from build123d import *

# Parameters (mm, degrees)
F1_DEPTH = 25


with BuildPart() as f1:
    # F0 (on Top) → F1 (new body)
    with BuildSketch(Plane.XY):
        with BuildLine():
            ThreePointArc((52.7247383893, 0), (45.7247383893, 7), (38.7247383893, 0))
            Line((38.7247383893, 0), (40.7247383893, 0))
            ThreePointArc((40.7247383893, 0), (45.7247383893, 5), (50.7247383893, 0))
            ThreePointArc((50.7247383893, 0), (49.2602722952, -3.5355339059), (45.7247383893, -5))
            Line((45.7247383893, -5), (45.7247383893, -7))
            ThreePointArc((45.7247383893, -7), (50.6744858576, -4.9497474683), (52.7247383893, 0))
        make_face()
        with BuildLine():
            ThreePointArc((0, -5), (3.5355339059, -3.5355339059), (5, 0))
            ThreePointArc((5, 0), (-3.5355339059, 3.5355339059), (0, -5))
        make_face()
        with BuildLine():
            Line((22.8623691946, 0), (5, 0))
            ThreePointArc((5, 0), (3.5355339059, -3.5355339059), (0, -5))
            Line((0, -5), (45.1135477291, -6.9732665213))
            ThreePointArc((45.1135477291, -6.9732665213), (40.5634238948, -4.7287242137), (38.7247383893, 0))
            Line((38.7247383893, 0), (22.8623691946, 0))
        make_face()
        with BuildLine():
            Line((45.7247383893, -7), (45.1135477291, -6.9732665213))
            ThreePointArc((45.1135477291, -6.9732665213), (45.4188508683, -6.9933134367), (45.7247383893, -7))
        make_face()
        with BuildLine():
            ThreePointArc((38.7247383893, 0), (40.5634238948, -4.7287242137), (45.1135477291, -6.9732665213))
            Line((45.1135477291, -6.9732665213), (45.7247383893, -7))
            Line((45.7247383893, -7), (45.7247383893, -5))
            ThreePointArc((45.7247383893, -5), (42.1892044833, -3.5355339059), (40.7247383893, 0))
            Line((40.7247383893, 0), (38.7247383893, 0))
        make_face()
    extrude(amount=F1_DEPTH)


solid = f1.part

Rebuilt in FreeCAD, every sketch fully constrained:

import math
import FreeCAD as App
import Part
import Sketcher

V = App.Vector
Q = App.Units.Quantity

doc = App.newDocument("Part")
body = doc.addObject("PartDesign::Body", "Body")

# Sketch on XY plane
sketch1 = body.newObject("Sketcher::SketchObject", "Sketch")
sketch1.AttachmentSupport = (doc.getObject("XY_Plane"), [""])
sketch1.MapMode = "FlatFace"
sketch1.addGeometry([
    Part.ArcOfCircle(Part.Circle(V(45.724738, 0, 0), V(0, 0, 1), 7), math.radians(-95.009042), math.radians(-90)),  # 0
    Part.ArcOfCircle(Part.Circle(V(45.724738, 0, 0), V(0, 0, 1), 7), math.radians(-90), math.radians(0)),  # 1
    Part.ArcOfCircle(Part.Circle(V(45.724738, 0, 0), V(0, 0, 1), 7), math.radians(0), math.radians(180)),  # 2
    Part.LineSegment(V(38.724738, 0, 0), V(5, 0, 0)),  # 3
    Part.ArcOfCircle(Part.Circle(V(0, 0, 0), V(0, 0, 1), 5), math.radians(0), math.radians(270)),  # 4
    Part.LineSegment(V(0, -5, 0), V(45.113548, -6.973267, 0)),  # 5
    Part.ArcOfCircle(Part.Circle(V(45.724738, 0, 0), V(0, 0, 1), 5), math.radians(-90), math.radians(0)),  # 6
    Part.ArcOfCircle(Part.Circle(V(45.724738, 0, 0), V(0, 0, 1), 5), math.radians(180), math.radians(270)),  # 7
    Part.ArcOfCircle(Part.Circle(V(45.724738, 0, 0), V(0, 0, 1), 5), math.radians(0), math.radians(180)),  # 8
], False)
sketch1.addConstraint([
    Sketcher.Constraint("Tangent", 0, 2, 1, 1),
    Sketcher.Constraint("Tangent", 1, 2, 2, 1),
    Sketcher.Constraint("Coincident", 2, 2, 3, 1),
    Sketcher.Constraint("Coincident", 3, 2, 4, 1),
    Sketcher.Constraint("Coincident", 4, 2, 5, 1),
    Sketcher.Constraint("Coincident", 5, 2, 0, 1),
    Sketcher.Constraint("Tangent", 6, 1, 7, 2),
    Sketcher.Constraint("Tangent", 7, 1, 8, 2),
    Sketcher.Constraint("Tangent", 8, 1, 6, 2),
    Sketcher.Constraint("Horizontal", 3),
    Sketcher.Constraint("Coincident", 4, 3, -1, 1),
    Sketcher.Constraint("Coincident", 2, 3, 0, 3),
    Sketcher.Constraint("Coincident", 6, 3, 0, 3),
    Sketcher.Constraint("Equal", 4, 6),
    Sketcher.Constraint("PointOnObject", 0, 3, -1),
    Sketcher.Constraint("PointOnObject", 1, 2, -1),
    Sketcher.Constraint("PointOnObject", 2, 2, -1),
    Sketcher.Constraint("PointOnObject", 4, 2, -2),
    Sketcher.Constraint("PointOnObject", 7, 1, -1),
    Sketcher.Constraint("PointOnObject", 8, 1, -1),
    Sketcher.Constraint("Vertical", 8, 3, 0, 2),
    Sketcher.Constraint("Vertical", 0, 2, 6, 1),
    Sketcher.Constraint("Radius", 0, Q("7 mm")),
    Sketcher.Constraint("Radius", 4, Q("5 mm")),
    Sketcher.Constraint("DistanceX", 3, 2, 3, 1, Q("33.724738 mm")),
    Sketcher.Constraint("DistanceX", 5, 2, 0, 2, Q("0.611191 mm")),
])
pad1 = body.newObject("PartDesign::Pad", "Pad")
pad1.Profile = sketch1
pad1.Length = 25

doc.recompute()
